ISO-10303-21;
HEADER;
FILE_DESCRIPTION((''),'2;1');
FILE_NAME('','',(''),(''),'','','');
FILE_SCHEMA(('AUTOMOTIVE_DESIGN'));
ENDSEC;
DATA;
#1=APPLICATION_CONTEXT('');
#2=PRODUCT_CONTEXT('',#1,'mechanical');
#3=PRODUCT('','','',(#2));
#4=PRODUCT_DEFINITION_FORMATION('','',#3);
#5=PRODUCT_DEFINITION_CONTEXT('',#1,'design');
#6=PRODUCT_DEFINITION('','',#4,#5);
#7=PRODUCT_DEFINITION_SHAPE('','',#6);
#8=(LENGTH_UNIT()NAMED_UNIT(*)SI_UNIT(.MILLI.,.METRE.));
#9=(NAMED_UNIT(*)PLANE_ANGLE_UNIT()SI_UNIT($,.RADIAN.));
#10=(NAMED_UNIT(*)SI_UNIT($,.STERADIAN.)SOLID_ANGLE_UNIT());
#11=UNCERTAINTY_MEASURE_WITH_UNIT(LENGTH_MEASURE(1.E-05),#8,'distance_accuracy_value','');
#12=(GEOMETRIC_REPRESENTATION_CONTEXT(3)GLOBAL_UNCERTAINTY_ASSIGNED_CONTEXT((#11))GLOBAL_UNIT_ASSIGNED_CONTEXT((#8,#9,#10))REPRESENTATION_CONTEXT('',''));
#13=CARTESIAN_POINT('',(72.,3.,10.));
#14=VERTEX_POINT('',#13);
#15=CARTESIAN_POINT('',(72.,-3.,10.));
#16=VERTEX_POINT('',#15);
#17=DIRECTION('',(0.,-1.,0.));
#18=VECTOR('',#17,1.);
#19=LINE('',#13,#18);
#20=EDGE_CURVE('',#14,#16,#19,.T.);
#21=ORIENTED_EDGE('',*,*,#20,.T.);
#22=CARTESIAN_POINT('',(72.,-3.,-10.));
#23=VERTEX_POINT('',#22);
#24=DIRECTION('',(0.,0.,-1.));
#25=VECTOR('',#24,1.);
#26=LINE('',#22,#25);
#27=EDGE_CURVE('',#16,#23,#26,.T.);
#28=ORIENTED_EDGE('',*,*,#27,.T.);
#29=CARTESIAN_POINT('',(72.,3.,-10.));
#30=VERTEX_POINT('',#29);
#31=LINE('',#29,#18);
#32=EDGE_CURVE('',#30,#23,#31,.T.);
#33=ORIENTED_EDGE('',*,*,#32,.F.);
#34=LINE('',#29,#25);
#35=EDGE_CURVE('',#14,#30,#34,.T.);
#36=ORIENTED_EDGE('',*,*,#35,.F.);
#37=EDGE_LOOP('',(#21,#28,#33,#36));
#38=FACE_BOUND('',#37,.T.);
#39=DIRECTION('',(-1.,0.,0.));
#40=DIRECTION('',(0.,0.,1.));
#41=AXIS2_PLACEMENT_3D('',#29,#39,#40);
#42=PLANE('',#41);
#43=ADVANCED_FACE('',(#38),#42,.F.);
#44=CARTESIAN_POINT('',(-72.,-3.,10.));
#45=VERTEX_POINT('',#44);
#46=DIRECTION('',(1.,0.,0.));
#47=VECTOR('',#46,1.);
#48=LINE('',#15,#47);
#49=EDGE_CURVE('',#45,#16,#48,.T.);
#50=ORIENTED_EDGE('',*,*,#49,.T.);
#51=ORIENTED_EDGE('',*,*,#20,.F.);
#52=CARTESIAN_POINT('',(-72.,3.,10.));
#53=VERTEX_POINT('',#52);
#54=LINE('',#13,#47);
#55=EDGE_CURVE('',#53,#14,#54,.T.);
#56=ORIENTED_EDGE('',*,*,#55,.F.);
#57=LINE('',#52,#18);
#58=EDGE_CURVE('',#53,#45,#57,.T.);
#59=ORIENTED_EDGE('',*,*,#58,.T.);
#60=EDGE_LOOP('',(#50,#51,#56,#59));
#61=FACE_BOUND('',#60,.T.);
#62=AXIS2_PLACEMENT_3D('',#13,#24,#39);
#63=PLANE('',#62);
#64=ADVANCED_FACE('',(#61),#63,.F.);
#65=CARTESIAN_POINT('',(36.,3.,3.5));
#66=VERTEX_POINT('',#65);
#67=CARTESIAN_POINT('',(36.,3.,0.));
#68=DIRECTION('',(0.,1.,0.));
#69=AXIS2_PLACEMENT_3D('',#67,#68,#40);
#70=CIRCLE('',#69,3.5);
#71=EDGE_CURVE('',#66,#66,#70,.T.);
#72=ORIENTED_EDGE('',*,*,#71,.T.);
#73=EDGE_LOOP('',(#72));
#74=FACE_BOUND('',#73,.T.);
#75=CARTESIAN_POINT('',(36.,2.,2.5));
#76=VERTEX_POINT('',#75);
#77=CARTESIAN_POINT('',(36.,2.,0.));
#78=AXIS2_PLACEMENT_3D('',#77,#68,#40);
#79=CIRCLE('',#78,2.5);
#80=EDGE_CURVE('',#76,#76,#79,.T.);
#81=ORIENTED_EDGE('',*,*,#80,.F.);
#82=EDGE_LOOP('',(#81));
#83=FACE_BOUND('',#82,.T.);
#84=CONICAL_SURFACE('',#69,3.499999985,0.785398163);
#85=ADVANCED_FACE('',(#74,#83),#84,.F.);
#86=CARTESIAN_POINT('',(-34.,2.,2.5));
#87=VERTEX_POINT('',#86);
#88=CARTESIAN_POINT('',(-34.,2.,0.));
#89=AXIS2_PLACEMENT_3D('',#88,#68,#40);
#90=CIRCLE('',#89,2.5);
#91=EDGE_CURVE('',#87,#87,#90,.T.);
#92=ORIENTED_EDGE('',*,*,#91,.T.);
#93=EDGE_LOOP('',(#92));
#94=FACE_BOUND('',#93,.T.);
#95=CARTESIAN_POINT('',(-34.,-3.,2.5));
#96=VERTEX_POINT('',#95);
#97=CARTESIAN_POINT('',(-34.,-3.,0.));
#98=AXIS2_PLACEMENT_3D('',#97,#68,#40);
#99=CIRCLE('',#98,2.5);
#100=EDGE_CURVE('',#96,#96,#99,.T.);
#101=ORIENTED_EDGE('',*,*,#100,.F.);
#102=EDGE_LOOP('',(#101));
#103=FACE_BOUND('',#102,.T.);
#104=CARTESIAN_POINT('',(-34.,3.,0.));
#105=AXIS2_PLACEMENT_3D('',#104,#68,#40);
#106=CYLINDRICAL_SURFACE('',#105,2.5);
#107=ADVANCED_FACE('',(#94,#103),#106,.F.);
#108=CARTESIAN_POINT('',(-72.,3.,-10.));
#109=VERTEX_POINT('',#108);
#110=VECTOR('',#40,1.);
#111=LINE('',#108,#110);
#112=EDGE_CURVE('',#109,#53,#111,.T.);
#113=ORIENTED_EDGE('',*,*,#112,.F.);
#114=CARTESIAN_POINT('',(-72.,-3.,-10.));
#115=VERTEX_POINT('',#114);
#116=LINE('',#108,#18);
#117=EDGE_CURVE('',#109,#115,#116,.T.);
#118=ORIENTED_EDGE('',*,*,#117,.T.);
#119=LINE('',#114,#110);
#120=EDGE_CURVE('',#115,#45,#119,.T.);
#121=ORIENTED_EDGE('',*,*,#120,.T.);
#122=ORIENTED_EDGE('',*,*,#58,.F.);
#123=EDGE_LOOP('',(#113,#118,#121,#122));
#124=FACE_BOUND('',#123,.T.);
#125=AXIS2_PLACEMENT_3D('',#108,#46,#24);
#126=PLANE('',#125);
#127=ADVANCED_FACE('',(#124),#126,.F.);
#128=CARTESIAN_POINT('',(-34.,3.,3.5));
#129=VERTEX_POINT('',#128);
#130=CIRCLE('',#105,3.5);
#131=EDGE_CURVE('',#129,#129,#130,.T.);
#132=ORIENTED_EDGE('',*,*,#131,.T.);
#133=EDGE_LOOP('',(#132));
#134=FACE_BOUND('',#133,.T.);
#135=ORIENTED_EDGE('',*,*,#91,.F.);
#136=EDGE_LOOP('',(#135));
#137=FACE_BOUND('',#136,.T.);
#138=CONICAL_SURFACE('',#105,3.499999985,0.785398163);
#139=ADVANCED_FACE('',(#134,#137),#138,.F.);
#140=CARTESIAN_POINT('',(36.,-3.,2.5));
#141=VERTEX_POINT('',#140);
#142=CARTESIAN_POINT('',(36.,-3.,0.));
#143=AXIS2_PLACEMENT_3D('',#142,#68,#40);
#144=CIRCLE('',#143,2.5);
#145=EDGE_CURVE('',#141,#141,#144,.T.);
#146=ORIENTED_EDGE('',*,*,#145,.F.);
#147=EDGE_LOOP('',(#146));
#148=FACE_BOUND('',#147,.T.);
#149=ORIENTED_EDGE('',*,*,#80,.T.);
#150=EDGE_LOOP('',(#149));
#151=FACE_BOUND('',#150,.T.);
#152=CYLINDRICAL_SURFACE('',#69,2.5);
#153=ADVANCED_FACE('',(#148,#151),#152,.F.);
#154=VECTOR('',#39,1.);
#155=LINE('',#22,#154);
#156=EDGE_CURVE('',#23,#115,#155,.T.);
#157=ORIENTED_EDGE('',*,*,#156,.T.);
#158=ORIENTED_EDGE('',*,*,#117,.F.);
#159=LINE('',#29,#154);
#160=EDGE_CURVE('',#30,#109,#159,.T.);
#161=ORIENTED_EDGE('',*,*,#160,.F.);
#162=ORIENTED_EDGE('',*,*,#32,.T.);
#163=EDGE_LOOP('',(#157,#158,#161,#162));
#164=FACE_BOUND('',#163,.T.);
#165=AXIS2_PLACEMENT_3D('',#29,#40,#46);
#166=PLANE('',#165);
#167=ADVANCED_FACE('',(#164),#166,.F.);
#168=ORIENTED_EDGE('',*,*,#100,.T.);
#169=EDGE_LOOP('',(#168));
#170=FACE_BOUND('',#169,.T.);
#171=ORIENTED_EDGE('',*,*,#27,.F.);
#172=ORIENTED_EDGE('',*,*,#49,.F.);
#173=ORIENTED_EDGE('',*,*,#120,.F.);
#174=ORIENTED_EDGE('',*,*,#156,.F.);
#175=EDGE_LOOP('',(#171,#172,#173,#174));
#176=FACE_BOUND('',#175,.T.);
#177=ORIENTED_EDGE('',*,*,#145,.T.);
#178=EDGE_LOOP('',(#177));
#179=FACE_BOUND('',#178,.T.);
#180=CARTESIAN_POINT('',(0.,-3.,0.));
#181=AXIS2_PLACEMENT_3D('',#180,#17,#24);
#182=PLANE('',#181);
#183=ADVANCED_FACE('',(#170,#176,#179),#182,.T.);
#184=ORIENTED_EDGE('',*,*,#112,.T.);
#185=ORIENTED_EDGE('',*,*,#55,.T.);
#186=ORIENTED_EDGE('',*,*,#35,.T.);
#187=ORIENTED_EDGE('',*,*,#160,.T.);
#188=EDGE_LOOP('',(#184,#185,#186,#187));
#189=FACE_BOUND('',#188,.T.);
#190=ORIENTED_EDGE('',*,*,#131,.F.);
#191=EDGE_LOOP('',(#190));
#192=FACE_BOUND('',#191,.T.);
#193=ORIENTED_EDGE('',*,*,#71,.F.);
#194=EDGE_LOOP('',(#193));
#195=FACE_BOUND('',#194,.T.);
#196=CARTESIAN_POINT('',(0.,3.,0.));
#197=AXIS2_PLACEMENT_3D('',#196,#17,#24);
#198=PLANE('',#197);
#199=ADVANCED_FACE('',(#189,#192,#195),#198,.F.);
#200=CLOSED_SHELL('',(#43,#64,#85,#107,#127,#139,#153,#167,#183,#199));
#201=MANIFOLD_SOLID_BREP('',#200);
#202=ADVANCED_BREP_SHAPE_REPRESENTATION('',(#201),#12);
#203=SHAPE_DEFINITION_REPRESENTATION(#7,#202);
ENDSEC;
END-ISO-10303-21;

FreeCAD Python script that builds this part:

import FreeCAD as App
import Part
import Sketcher
from FreeCAD import Vector

doc = App.newDocument("Part")
body = doc.addObject("PartDesign::Body", "Body")

# Sketch on XZ plane
sketch1 = body.newObject("Sketcher::SketchObject", "Sketch")
sketch1.AttachmentSupport = (doc.getObject("XZ_Plane"), [""])
sketch1.MapMode = "FlatFace"
sketch1.addGeometry(Part.LineSegment(Vector(-72, -10, 0), Vector(-72, 10, 0)), False)
sketch1.addGeometry(Part.LineSegment(Vector(-72, 10, 0), Vector(72, 10, 0)), False)
sketch1.addGeometry(Part.LineSegment(Vector(72, 10, 0), Vector(72, -10, 0)), False)
sketch1.addGeometry(Part.LineSegment(Vector(72, -10, 0), Vector(-72, -10, 0)), False)
sketch1.addConstraint(Sketcher.Constraint("Coincident", 0, 2, 1, 1))
sketch1.addConstraint(Sketcher.Constraint("Coincident", 1, 2, 2, 1))
sketch1.addConstraint(Sketcher.Constraint("Coincident", 2, 2, 3, 1))
sketch1.addConstraint(Sketcher.Constraint("Coincident", 3, 2, 0, 1))
sketch1.addConstraint(Sketcher.Constraint("Vertical", 0))
sketch1.addConstraint(Sketcher.Constraint("Horizontal", 1))
sketch1.addConstraint(Sketcher.Constraint("Vertical", 2))
sketch1.addConstraint(Sketcher.Constraint("Horizontal", 3))
sketch1.addConstraint(Sketcher.Constraint("Symmetric", 0, 2, 2, 2, -1, 1))
sketch1.addConstraint(Sketcher.Constraint("DistanceX", 1, 1, 1, 2, 144.0))
sketch1.addConstraint(Sketcher.Constraint("DistanceY", 0, 1, 0, 2, 20.0))
pad1 = body.newObject("PartDesign::Pad", "Pad")
pad1.Profile = sketch1
pad1.Length = 6
pad1.Midplane = True

# Sketch on XZ plane
sketch2 = body.newObject("Sketcher::SketchObject", "Sketch001")
sketch2.AttachmentSupport = (doc.getObject("XZ_Plane"), [""])
sketch2.MapMode = "FlatFace"
sketch2.AttachmentOffset = App.Placement(Vector(0, 0, -3), App.Rotation())
sketch2.addGeometry(Part.Circle(Vector(-34, 0, 0), Vector(0, 0, 1), 2.5), False)
sketch2.addGeometry(Part.Circle(Vector(36, 0, 0), Vector(0, 0, 1), 2.5), False)
sketch2.addConstraint(Sketcher.Constraint("Equal", 0, 1))
sketch2.addConstraint(Sketcher.Constraint("PointOnObject", 0, 3, -1))
sketch2.addConstraint(Sketcher.Constraint("PointOnObject", 1, 3, -1))
sketch2.addConstraint(Sketcher.Constraint("Diameter", 0, 5.0))
sketch2.addConstraint(Sketcher.Constraint("DistanceX", 0, 3, -1, 1, 34.0))
sketch2.addConstraint(Sketcher.Constraint("DistanceX", -1, 1, 1, 3, 36.0))
doc.recompute()
hole = body.newObject("PartDesign::Hole", "Hole")
hole.Profile = sketch2
hole.ThreadType = "None"
hole.Diameter = 5
hole.DepthType = "ThroughAll"
hole.HoleCutType = "Countersink"
hole.HoleCutDiameter = 7
hole.HoleCutCountersinkAngle = 90
hole.Reversed = True

doc.recompute()
